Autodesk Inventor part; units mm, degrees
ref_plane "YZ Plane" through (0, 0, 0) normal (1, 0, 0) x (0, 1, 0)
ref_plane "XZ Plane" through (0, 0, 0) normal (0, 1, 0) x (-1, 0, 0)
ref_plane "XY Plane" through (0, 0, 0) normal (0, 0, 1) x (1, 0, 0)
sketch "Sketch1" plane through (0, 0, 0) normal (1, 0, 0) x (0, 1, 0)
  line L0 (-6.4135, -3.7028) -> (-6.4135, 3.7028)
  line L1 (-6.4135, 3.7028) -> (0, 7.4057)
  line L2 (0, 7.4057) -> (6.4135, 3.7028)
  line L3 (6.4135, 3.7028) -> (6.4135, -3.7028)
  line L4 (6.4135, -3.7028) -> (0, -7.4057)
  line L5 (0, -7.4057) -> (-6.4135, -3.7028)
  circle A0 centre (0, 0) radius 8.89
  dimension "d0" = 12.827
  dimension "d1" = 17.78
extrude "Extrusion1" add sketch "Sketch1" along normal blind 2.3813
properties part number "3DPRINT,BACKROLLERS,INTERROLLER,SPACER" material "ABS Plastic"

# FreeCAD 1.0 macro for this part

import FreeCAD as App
import Part
import Sketcher

V = App.Vector
Q = App.Units.Quantity


def add_polygon(sketch, points):
    """Adds a closed chain of lines whose ends are joined by coincident constraints."""
    first, n = sketch.GeometryCount, len(points)
    for a, b in zip(points, points[1:] + points[:1]):
        sketch.addGeometry(Part.LineSegment(App.Vector(*a, 0), App.Vector(*b, 0)), False)
    for i in range(n):
        sketch.addConstraint(Sketcher.Constraint("Coincident", first + i, 2, first + (i + 1) % n, 1))

doc = App.newDocument("Part")
params = doc.addObject("Spreadsheet::Sheet", "Params")
for row, (alias, value) in enumerate([
    ("sketch1_diameter", "0.7 in"),
    ("pad1_length", "0.093752 in"),
], start=1):
    params.set(f"A{row}", alias)
    params.set(f"B{row}", "=" + value)
    params.setAlias(f"B{row}", alias)

body = doc.addObject("PartDesign::Body", "Body")

# Sketch on YZ plane
sketch1 = doc.addObject("Sketcher::SketchObject", "Sketch")
body.addObject(sketch1)
sketch1.AttachmentSupport = (doc.YZ_Plane, [""])
sketch1.MapMode = "FlatFace"
sketch1.addGeometry(Part.Circle(V(0, 0, 0), V(0, 0, 1), 8.89), False)  # 0
add_polygon(sketch1, [(0, -7.4057), (-6.4135, -3.7028), (-6.4135, 3.7028), (0, 7.4057), (6.4135, 3.7028), (6.4135, -3.7028)])  # lines 1-6
sketch1.addConstraint([
    Sketcher.Constraint("Vertical", 2),
    Sketcher.Constraint("Vertical", 5),
    Sketcher.Constraint("Coincident", 0, 3, -1, 1),
    Sketcher.Constraint("Symmetric", 1, 2, 4, 2, -1, 1),
    Sketcher.Constraint("Symmetric", 3, 2, 6, 2, -1, 1),
    Sketcher.Constraint("PointOnObject", 3, 2, -2),
    Sketcher.Constraint("Parallel", 3, 6),
    Sketcher.Constraint("Horizontal", 2, 2, 4, 2),
    Sketcher.Constraint("Diameter", 0, Q("0.7 in")),
    Sketcher.Constraint("Angle", 1, Q("149.9996 deg")),
    Sketcher.Constraint("DistanceX", 2, 2, 4, 2, Q("0.505 in")),
    Sketcher.Constraint("DistanceY", 2, 1, 2, 2, 7.4056),
])
sketch1.setExpression("Constraints[14]", "Params.sketch1_diameter")
pad1 = doc.addObject("PartDesign::Pad", "Pad")
body.addObject(pad1)
pad1.Profile = sketch1
pad1.setExpression("Length", "Params.pad1_length")

doc.recompute()
